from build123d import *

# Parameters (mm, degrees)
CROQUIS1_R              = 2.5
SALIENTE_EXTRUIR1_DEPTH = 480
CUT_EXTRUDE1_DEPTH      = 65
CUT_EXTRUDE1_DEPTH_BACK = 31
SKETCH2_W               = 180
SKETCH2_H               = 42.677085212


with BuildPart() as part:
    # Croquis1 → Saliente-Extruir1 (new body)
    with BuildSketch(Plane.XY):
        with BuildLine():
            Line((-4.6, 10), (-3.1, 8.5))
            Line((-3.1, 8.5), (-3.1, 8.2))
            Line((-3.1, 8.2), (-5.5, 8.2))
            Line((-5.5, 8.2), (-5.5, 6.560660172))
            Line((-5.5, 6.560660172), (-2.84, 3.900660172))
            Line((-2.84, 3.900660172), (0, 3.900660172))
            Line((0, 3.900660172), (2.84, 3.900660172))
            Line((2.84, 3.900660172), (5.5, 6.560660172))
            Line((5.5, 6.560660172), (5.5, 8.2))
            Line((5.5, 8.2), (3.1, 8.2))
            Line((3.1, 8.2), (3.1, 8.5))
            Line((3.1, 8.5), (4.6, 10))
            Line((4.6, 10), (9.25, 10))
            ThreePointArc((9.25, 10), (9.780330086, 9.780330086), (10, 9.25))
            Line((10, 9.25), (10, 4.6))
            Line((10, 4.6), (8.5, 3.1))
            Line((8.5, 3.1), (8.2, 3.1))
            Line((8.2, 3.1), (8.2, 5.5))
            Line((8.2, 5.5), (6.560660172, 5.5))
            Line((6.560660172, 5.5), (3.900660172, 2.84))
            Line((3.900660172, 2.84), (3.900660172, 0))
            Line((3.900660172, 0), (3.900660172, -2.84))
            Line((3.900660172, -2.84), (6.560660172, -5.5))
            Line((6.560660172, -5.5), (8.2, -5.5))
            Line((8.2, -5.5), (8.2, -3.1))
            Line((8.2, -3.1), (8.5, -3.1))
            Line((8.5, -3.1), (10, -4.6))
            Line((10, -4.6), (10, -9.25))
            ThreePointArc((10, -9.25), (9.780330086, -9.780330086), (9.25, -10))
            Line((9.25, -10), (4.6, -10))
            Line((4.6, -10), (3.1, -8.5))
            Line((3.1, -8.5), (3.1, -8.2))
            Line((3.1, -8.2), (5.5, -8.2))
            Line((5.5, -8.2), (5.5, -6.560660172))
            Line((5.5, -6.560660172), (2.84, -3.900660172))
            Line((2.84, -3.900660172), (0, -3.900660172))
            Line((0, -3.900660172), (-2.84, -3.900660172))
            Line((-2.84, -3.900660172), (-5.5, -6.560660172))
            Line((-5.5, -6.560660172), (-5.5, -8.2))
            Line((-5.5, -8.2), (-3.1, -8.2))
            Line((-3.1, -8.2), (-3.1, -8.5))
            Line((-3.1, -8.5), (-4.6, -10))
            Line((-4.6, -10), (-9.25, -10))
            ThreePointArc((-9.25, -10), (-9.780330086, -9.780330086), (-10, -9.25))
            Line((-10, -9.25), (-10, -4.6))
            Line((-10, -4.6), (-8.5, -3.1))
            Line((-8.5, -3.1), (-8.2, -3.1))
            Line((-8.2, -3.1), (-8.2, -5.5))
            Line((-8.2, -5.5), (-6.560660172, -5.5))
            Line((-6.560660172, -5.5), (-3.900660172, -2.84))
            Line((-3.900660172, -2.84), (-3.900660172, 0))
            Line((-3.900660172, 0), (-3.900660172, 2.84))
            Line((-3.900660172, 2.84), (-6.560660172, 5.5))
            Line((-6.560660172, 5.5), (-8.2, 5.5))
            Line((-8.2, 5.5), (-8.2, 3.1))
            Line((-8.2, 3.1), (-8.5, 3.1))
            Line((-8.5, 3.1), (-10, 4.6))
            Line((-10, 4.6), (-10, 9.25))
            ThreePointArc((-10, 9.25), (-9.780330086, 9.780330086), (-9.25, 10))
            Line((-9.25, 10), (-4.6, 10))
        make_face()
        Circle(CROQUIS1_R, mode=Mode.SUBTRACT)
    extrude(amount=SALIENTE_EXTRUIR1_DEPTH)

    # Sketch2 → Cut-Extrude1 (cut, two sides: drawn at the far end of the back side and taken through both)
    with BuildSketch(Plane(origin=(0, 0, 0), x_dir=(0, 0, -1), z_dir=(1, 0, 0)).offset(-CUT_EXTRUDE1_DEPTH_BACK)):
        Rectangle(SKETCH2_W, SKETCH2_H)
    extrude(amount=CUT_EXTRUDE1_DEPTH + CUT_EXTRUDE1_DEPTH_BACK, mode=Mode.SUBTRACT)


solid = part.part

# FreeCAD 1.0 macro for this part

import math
import FreeCAD as App
import Part
import Sketcher
Q = App.Units.Quantity


def add_polygon(sketch, points):
    """Adds a closed chain of lines whose ends are joined by coincident constraints."""
    first, n = sketch.GeometryCount, len(points)
    for a, b in zip(points, points[1:] + points[:1]):
        sketch.addGeometry(Part.LineSegment(App.Vector(*a, 0), App.Vector(*b, 0)), False)
    for i in range(n):
        sketch.addConstraint(Sketcher.Constraint("Coincident", first + i, 2, first + (i + 1) % n, 1))

doc = App.newDocument("Part")
params = doc.addObject("Spreadsheet::Sheet", "Params")
for row, (alias, value) in enumerate([
    ("sketch1_diameter", "5 mm"),
    ("sketch1_radius", "0.75 mm"),
    ("sketch1_width", "0.3 mm"),
    ("sketch1_width2", "2.4 mm"),
    ("sketch1_width3", "4.65 mm"),
    ("pad1_length", "480 mm"),
    ("sketch2_height", "180 mm"),
], start=1):
    params.set(f"A{row}", alias)
    params.set(f"B{row}", "=" + value)
    params.setAlias(f"B{row}", alias)

body = doc.addObject("PartDesign::Body", "Body")

# Sketch on XY plane
sketch1 = body.newObject("Sketcher::SketchObject", "Sketch")
sketch1.AttachmentSupport = (doc.getObject("XY_Plane"), [""])
sketch1.MapMode = "FlatFace"
sketch1.addGeometry([
    Part.LineSegment(App.Vector(-3.1, 8.5, 0), App.Vector(-4.6, 10, 0)),  # 0
    Part.LineSegment(App.Vector(-4.6, 10, 0), App.Vector(-9.25, 10, 0)),  # 1
    Part.ArcOfCircle(Part.Circle(App.Vector(-9.25, 9.25, 0), App.Vector(0, 0, 1), 0.75), math.radians(90), math.radians(180)),  # 2
    Part.LineSegment(App.Vector(-10, 9.25, 0), App.Vector(-10, 4.6, 0)),  # 3
    Part.LineSegment(App.Vector(-10, 4.6, 0), App.Vector(-8.5, 3.1, 0)),  # 4
    Part.LineSegment(App.Vector(-8.5, 3.1, 0), App.Vector(-8.2, 3.1, 0)),  # 5
    Part.LineSegment(App.Vector(-8.2, 3.1, 0), App.Vector(-8.2, 5.5, 0)),  # 6
    Part.LineSegment(App.Vector(-8.2, 5.5, 0), App.Vector(-6.56066, 5.5, 0)),  # 7
    Part.LineSegment(App.Vector(-6.56066, 5.5, 0), App.Vector(-3.90066, 2.84, 0)),  # 8
    Part.LineSegment(App.Vector(-3.90066, 2.84, 0), App.Vector(-3.90066, -2.84, 0)),  # 9
    Part.LineSegment(App.Vector(-3.90066, -2.84, 0), App.Vector(-6.56066, -5.5, 0)),  # 10
    Part.LineSegment(App.Vector(-6.56066, -5.5, 0), App.Vector(-8.2, -5.5, 0)),  # 11
    Part.LineSegment(App.Vector(-8.2, -5.5, 0), App.Vector(-8.2, -3.1, 0)),  # 12
    Part.LineSegment(App.Vector(-8.2, -3.1, 0), App.Vector(-8.5, -3.1, 0)),  # 13
    Part.LineSegment(App.Vector(-8.5, -3.1, 0), App.Vector(-10, -4.6, 0)),  # 14
    Part.LineSegment(App.Vector(-10, -4.6, 0), App.Vector(-10, -9.25, 0)),  # 15
    Part.ArcOfCircle(Part.Circle(App.Vector(-9.25, -9.25, 0), App.Vector(0, 0, 1), 0.75), math.radians(180), math.radians(270)),  # 16
    Part.LineSegment(App.Vector(-9.25, -10, 0), App.Vector(-4.6, -10, 0)),  # 17
    Part.LineSegment(App.Vector(-4.6, -10, 0), App.Vector(-3.1, -8.5, 0)),  # 18
    Part.LineSegment(App.Vector(-3.1, -8.5, 0), App.Vector(-3.1, -8.2, 0)),  # 19
    Part.LineSegment(App.Vector(-3.1, -8.2, 0), App.Vector(-5.5, -8.2, 0)),  # 20
    Part.LineSegment(App.Vector(-5.5, -8.2, 0), App.Vector(-5.5, -6.56066, 0)),  # 21
    Part.LineSegment(App.Vector(-5.5, -6.56066, 0), App.Vector(-2.84, -3.90066, 0)),  # 22
    Part.LineSegment(App.Vector(-2.84, -3.90066, 0), App.Vector(2.84, -3.90066, 0)),  # 23
    Part.LineSegment(App.Vector(2.84, -3.90066, 0), App.Vector(5.5, -6.56066, 0)),  # 24
    Part.LineSegment(App.Vector(5.5, -6.56066, 0), App.Vector(5.5, -8.2, 0)),  # 25
    Part.LineSegment(App.Vector(5.5, -8.2, 0), App.Vector(3.1, -8.2, 0)),  # 26
    Part.LineSegment(App.Vector(3.1, -8.2, 0), App.Vector(3.1, -8.5, 0)),  # 27
    Part.LineSegment(App.Vector(3.1, -8.5, 0), App.Vector(4.6, -10, 0)),  # 28
    Part.LineSegment(App.Vector(4.6, -10, 0), App.Vector(9.25, -10, 0)),  # 29
    Part.ArcOfCircle(Part.Circle(App.Vector(9.25, -9.25, 0), App.Vector(0, 0, 1), 0.75), math.radians(-90), math.radians(0)),  # 30
    Part.LineSegment(App.Vector(10, -9.25, 0), App.Vector(10, -4.6, 0)),  # 31
    Part.LineSegment(App.Vector(10, -4.6, 0), App.Vector(8.5, -3.1, 0)),  # 32
    Part.LineSegment(App.Vector(8.5, -3.1, 0), App.Vector(8.2, -3.1, 0)),  # 33
    Part.LineSegment(App.Vector(8.2, -3.1, 0), App.Vector(8.2, -5.5, 0)),  # 34
    Part.LineSegment(App.Vector(8.2, -5.5, 0), App.Vector(6.56066, -5.5, 0)),  # 35
    Part.LineSegment(App.Vector(6.56066, -5.5, 0), App.Vector(3.90066, -2.84, 0)),  # 36
    Part.LineSegment(App.Vector(3.90066, -2.84, 0), App.Vector(3.90066, 2.84, 0)),  # 37
    Part.LineSegment(App.Vector(3.90066, 2.84, 0), App.Vector(6.56066, 5.5, 0)),  # 38
    Part.LineSegment(App.Vector(6.56066, 5.5, 0), App.Vector(8.2, 5.5, 0)),  # 39
    Part.LineSegment(App.Vector(8.2, 5.5, 0), App.Vector(8.2, 3.1, 0)),  # 40
    Part.LineSegment(App.Vector(8.2, 3.1, 0), App.Vector(8.5, 3.1, 0)),  # 41
    Part.LineSegment(App.Vector(8.5, 3.1, 0), App.Vector(10, 4.6, 0)),  # 42
    Part.LineSegment(App.Vector(10, 4.6, 0), App.Vector(10, 9.25, 0)),  # 43
    Part.ArcOfCircle(Part.Circle(App.Vector(9.25, 9.25, 0), App.Vector(0, 0, 1), 0.75), math.radians(0), math.radians(90)),  # 44
    Part.LineSegment(App.Vector(9.25, 10, 0), App.Vector(4.6, 10, 0)),  # 45
    Part.LineSegment(App.Vector(4.6, 10, 0), App.Vector(3.1, 8.5, 0)),  # 46
    Part.LineSegment(App.Vector(3.1, 8.5, 0), App.Vector(3.1, 8.2, 0)),  # 47
    Part.LineSegment(App.Vector(3.1, 8.2, 0), App.Vector(5.5, 8.2, 0)),  # 48
    Part.LineSegment(App.Vector(5.5, 8.2, 0), App.Vector(5.5, 6.56066, 0)),  # 49
    Part.LineSegment(App.Vector(5.5, 6.56066, 0), App.Vector(2.84, 3.90066, 0)),  # 50
    Part.LineSegment(App.Vector(2.84, 3.90066, 0), App.Vector(-2.84, 3.90066, 0)),  # 51
    Part.LineSegment(App.Vector(-2.84, 3.90066, 0), App.Vector(-5.5, 6.56066, 0)),  # 52
    Part.LineSegment(App.Vector(-5.5, 6.56066, 0), App.Vector(-5.5, 8.2, 0)),  # 53
    Part.LineSegment(App.Vector(-5.5, 8.2, 0), App.Vector(-3.1, 8.2, 0)),  # 54
    Part.LineSegment(App.Vector(-3.1, 8.2, 0), App.Vector(-3.1, 8.5, 0)),  # 55
    Part.Circle(App.Vector(0, 0, 0), App.Vector(0, 0, 1), 2.5),  # 56
], False)
sketch1.addConstraint([
    Sketcher.Constraint("Coincident", 0, 2, 1, 1),
    Sketcher.Constraint("Tangent", 1, 2, 2, 1),
    Sketcher.Constraint("Tangent", 2, 2, 3, 1),
    Sketcher.Constraint("Coincident", 3, 2, 4, 1),
    Sketcher.Constraint("Coincident", 4, 2, 5, 1),
    Sketcher.Constraint("Coincident", 5, 2, 6, 1),
    Sketcher.Constraint("Coincident", 6, 2, 7, 1),
    Sketcher.Constraint("Coincident", 7, 2, 8, 1),
    Sketcher.Constraint("Coincident", 8, 2, 9, 1),
    Sketcher.Constraint("Coincident", 9, 2, 10, 1),
    Sketcher.Constraint("Coincident", 10, 2, 11, 1),
    Sketcher.Constraint("Coincident", 11, 2, 12, 1),
    Sketcher.Constraint("Coincident", 12, 2, 13, 1),
    Sketcher.Constraint("Coincident", 13, 2, 14, 1),
    Sketcher.Constraint("Coincident", 14, 2, 15, 1),
    Sketcher.Constraint("Tangent", 15, 2, 16, 1),
    Sketcher.Constraint("Tangent", 16, 2, 17, 1),
    Sketcher.Constraint("Coincident", 17, 2, 18, 1),
    Sketcher.Constraint("Coincident", 18, 2, 19, 1),
    Sketcher.Constraint("Coincident", 19, 2, 20, 1),
    Sketcher.Constraint("Coincident", 20, 2, 21, 1),
    Sketcher.Constraint("Coincident", 21, 2, 22, 1),
    Sketcher.Constraint("Coincident", 22, 2, 23, 1),
    Sketcher.Constraint("Coincident", 23, 2, 24, 1),
    Sketcher.Constraint("Coincident", 24, 2, 25, 1),
    Sketcher.Constraint("Coincident", 25, 2, 26, 1),
    Sketcher.Constraint("Coincident", 26, 2, 27, 1),
    Sketcher.Constraint("Coincident", 27, 2, 28, 1),
    Sketcher.Constraint("Coincident", 28, 2, 29, 1),
    Sketcher.Constraint("Tangent", 29, 2, 30, 1),
    Sketcher.Constraint("Tangent", 30, 2, 31, 1),
    Sketcher.Constraint("Coincident", 31, 2, 32, 1),
    Sketcher.Constraint("Coincident", 32, 2, 33, 1),
    Sketcher.Constraint("Coincident", 33, 2, 34, 1),
    Sketcher.Constraint("Coincident", 34, 2, 35, 1),
    Sketcher.Constraint("Coincident", 35, 2, 36, 1),
    Sketcher.Constraint("Coincident", 36, 2, 37, 1),
    Sketcher.Constraint("Coincident", 37, 2, 38, 1),
    Sketcher.Constraint("Coincident", 38, 2, 39, 1),
    Sketcher.Constraint("Coincident", 39, 2, 40, 1),
    Sketcher.Constraint("Coincident", 40, 2, 41, 1),
    Sketcher.Constraint("Coincident", 41, 2, 42, 1),
    Sketcher.Constraint("Coincident", 42, 2, 43, 1),
    Sketcher.Constraint("Tangent", 43, 2, 44, 1),
    Sketcher.Constraint("Tangent", 44, 2, 45, 1),
    Sketcher.Constraint("Coincident", 45, 2, 46, 1),
    Sketcher.Constraint("Coincident", 46, 2, 47, 1),
    Sketcher.Constraint("Coincident", 47, 2, 48, 1),
    Sketcher.Constraint("Coincident", 48, 2, 49, 1),
    Sketcher.Constraint("Coincident", 49, 2, 50, 1),
    Sketcher.Constraint("Coincident", 50, 2, 51, 1),
    Sketcher.Constraint("Coincident", 51, 2, 52, 1),
    Sketcher.Constraint("Coincident", 52, 2, 53, 1),
    Sketcher.Constraint("Coincident", 53, 2, 54, 1),
    Sketcher.Constraint("Coincident", 54, 2, 55, 1),
    Sketcher.Constraint("Coincident", 55, 2, 0, 1),
    Sketcher.Constraint("Horizontal", 1),
    Sketcher.Constraint("Vertical", 3),
    Sketcher.Constraint("Horizontal", 5),
    Sketcher.Constraint("Vertical", 6),
    Sketcher.Constraint("Horizontal", 7),
    Sketcher.Constraint("Vertical", 9),
    Sketcher.Constraint("Horizontal", 11),
    Sketcher.Constraint("Vertical", 12),
    Sketcher.Constraint("Horizontal", 13),
    Sketcher.Constraint("Vertical", 15),
    Sketcher.Constraint("Horizontal", 17),
    Sketcher.Constraint("Vertical", 19),
    Sketcher.Constraint("Horizontal", 20),
    Sketcher.Constraint("Vertical", 21),
    Sketcher.Constraint("Horizontal", 23),
    Sketcher.Constraint("Vertical", 25),
    Sketcher.Constraint("Horizontal", 26),
    Sketcher.Constraint("Vertical", 27),
    Sketcher.Constraint("Horizontal", 29),
    Sketcher.Constraint("Vertical", 31),
    Sketcher.Constraint("Horizontal", 33),
    Sketcher.Constraint("Vertical", 34),
    Sketcher.Constraint("Horizontal", 35),
    Sketcher.Constraint("Vertical", 37),
    Sketcher.Constraint("Horizontal", 39),
    Sketcher.Constraint("Vertical", 40),
    Sketcher.Constraint("Horizontal", 41),
    Sketcher.Constraint("Vertical", 43),
    Sketcher.Constraint("Horizontal", 45),
    Sketcher.Constraint("Vertical", 47),
    Sketcher.Constraint("Horizontal", 48),
    Sketcher.Constraint("Vertical", 49),
    Sketcher.Constraint("Horizontal", 51),
    Sketcher.Constraint("Vertical", 53),
    Sketcher.Constraint("Horizontal", 54),
    Sketcher.Constraint("Vertical", 55),
    Sketcher.Constraint("Coincident", 56, 3, -1, 1),
    Sketcher.Constraint("Equal", 2, 16),
    Sketcher.Constraint("Equal", 16, 30),
    Sketcher.Constraint("Equal", 30, 44),
    Sketcher.Constraint("Symmetric", 2, 3, 30, 3, -1, 1),
    Sketcher.Constraint("Symmetric", 16, 3, 44, 3, -1, 1),
    Sketcher.Constraint("Symmetric", 4, 2, 32, 2, -1, 1),
    Sketcher.Constraint("Symmetric", 6, 2, 34, 2, -1, 1),
    Sketcher.Constraint("Symmetric", 8, 2, 36, 2, -1, 1),
    Sketcher.Constraint("Symmetric", 10, 2, 38, 2, -1, 1),
    Sketcher.Constraint("Symmetric", 12, 2, 40, 2, -1, 1),
    Sketcher.Constraint("Symmetric", 18, 2, 46, 2, -1, 1),
    Sketcher.Constraint("Symmetric", 20, 2, 48, 2, -1, 1),
    Sketcher.Constraint("Symmetric", 22, 2, 50, 2, -1, 1),
    Sketcher.Constraint("Symmetric", 24, 2, 52, 2, -1, 1),
    Sketcher.Constraint("Symmetric", 26, 2, 54, 2, -1, 1),
    Sketcher.Constraint("Symmetric", 16, 3, 30, 3, -2),
    Sketcher.Constraint("Symmetric", 21, 2, 24, 2, -2),
    Sketcher.Constraint("Symmetric", 19, 2, 26, 2, -2),
    Sketcher.Constraint("Symmetric", 13, 2, 32, 2, -2),
    Sketcher.Constraint("Symmetric", 11, 2, 34, 2, -2),
    Sketcher.Constraint("Parallel", 0, 4),
    Sketcher.Constraint("Parallel", 4, 8),
    Sketcher.Constraint("Perpendicular", 8, 10),
    Sketcher.Constraint("Parallel", 10, 14),
    Sketcher.Constraint("Parallel", 14, 18),
    Sketcher.Constraint("Parallel", 18, 22),
    Sketcher.Constraint("Perpendicular", 22, 24),
    Sketcher.Constraint("Parallel", 24, 28),
    Sketcher.Constraint("Parallel", 28, 32),
    Sketcher.Constraint("Parallel", 32, 36),
    Sketcher.Constraint("Perpendicular", 36, 38),
    Sketcher.Constraint("Parallel", 38, 42),
    Sketcher.Constraint("Parallel", 42, 46),
    Sketcher.Constraint("Parallel", 46, 50),
    Sketcher.Constraint("Perpendicular", 50, 52),
    Sketcher.Constraint("Horizontal", 18, 2, 27, 2),
    Sketcher.Constraint("Horizontal", 14, 2, 31, 2),
    Sketcher.Constraint("Horizontal", 9, 2, 36, 2),
    Sketcher.Constraint("Horizontal", 3, 2, 42, 2),
    Sketcher.Constraint("Horizontal", 46, 2, 55, 2),
    Sketcher.Constraint("Equal", 45, 3),
    Sketcher.Constraint("Equal", 54, 6),
    Sketcher.Constraint("Equal", 51, 9),
    Sketcher.Constraint("Equal", 41, 19),
    Sketcher.Constraint("Equal", 39, 21),
    Sketcher.Constraint("Equal", 0, 4),
    Sketcher.Constraint("Equal", 10, 22),
    Sketcher.Constraint("Diameter", 56, Q("5 mm")),
    Sketcher.Constraint("Radius", 2, Q("0.75 mm")),
    Sketcher.Constraint("DistanceX", 5, 1, 5, 2, Q("0.3 mm")),
    Sketcher.Constraint("DistanceX", 20, 2, 20, 1, Q("2.4 mm")),
    Sketcher.Constraint("DistanceY", -1, 1, 0, 2, Q("10 mm")),
    Sketcher.Constraint("DistanceX", 1, 2, 1, 1, Q("4.65 mm")),
    Sketcher.Constraint("DistanceX", 23, 1, 23, 2, Q("5.68 mm")),
    Sketcher.Constraint("DistanceX", 4, 2, -1, 1, Q("8.5 mm")),
    Sketcher.Constraint("DistanceX", 7, 1, 7, 2, Q("1.63934 mm")),
])
sketch1.setExpression("Constraints[140]", "Params.sketch1_diameter")
sketch1.setExpression("Constraints[141]", "Params.sketch1_radius")
sketch1.setExpression("Constraints[142]", "Params.sketch1_width")
sketch1.setExpression("Constraints[143]", "Params.sketch1_width2")
sketch1.setExpression("Constraints[145]", "Params.sketch1_width3")
pad1 = body.newObject("PartDesign::Pad", "Pad")
pad1.Profile = sketch1
pad1.setExpression("Length", "Params.pad1_length")

# Sketch on YZ plane
sketch2 = body.newObject("Sketcher::SketchObject", "Sketch001")
sketch2.AttachmentSupport = (doc.getObject("YZ_Plane"), [""])
sketch2.MapMode = "FlatFace"
add_polygon(sketch2, [(21.338543, 90), (-21.338543, 90), (-21.338543, -90), (21.338543, -90)])  # lines 0-3
sketch2.addConstraint([
    Sketcher.Constraint("Horizontal", 0),
    Sketcher.Constraint("Vertical", 1),
    Sketcher.Constraint("Horizontal", 2),
    Sketcher.Constraint("Vertical", 3),
    Sketcher.Constraint("Symmetric", 0, 2, 2, 2, -1, 1),
    Sketcher.Constraint("DistanceY", 1, 2, 1, 1, Q("180 mm")),
    Sketcher.Constraint("DistanceX", 0, 2, 0, 1, Q("42.677085 mm")),
])
sketch2.setExpression("Constraints[9]", "Params.sketch2_height")
pocket1 = body.newObject("PartDesign::Pocket", "Pocket")
pocket1.Profile = sketch2
pocket1.Type = "ThroughAll"
pocket1.Midplane = True

doc.recompute()
